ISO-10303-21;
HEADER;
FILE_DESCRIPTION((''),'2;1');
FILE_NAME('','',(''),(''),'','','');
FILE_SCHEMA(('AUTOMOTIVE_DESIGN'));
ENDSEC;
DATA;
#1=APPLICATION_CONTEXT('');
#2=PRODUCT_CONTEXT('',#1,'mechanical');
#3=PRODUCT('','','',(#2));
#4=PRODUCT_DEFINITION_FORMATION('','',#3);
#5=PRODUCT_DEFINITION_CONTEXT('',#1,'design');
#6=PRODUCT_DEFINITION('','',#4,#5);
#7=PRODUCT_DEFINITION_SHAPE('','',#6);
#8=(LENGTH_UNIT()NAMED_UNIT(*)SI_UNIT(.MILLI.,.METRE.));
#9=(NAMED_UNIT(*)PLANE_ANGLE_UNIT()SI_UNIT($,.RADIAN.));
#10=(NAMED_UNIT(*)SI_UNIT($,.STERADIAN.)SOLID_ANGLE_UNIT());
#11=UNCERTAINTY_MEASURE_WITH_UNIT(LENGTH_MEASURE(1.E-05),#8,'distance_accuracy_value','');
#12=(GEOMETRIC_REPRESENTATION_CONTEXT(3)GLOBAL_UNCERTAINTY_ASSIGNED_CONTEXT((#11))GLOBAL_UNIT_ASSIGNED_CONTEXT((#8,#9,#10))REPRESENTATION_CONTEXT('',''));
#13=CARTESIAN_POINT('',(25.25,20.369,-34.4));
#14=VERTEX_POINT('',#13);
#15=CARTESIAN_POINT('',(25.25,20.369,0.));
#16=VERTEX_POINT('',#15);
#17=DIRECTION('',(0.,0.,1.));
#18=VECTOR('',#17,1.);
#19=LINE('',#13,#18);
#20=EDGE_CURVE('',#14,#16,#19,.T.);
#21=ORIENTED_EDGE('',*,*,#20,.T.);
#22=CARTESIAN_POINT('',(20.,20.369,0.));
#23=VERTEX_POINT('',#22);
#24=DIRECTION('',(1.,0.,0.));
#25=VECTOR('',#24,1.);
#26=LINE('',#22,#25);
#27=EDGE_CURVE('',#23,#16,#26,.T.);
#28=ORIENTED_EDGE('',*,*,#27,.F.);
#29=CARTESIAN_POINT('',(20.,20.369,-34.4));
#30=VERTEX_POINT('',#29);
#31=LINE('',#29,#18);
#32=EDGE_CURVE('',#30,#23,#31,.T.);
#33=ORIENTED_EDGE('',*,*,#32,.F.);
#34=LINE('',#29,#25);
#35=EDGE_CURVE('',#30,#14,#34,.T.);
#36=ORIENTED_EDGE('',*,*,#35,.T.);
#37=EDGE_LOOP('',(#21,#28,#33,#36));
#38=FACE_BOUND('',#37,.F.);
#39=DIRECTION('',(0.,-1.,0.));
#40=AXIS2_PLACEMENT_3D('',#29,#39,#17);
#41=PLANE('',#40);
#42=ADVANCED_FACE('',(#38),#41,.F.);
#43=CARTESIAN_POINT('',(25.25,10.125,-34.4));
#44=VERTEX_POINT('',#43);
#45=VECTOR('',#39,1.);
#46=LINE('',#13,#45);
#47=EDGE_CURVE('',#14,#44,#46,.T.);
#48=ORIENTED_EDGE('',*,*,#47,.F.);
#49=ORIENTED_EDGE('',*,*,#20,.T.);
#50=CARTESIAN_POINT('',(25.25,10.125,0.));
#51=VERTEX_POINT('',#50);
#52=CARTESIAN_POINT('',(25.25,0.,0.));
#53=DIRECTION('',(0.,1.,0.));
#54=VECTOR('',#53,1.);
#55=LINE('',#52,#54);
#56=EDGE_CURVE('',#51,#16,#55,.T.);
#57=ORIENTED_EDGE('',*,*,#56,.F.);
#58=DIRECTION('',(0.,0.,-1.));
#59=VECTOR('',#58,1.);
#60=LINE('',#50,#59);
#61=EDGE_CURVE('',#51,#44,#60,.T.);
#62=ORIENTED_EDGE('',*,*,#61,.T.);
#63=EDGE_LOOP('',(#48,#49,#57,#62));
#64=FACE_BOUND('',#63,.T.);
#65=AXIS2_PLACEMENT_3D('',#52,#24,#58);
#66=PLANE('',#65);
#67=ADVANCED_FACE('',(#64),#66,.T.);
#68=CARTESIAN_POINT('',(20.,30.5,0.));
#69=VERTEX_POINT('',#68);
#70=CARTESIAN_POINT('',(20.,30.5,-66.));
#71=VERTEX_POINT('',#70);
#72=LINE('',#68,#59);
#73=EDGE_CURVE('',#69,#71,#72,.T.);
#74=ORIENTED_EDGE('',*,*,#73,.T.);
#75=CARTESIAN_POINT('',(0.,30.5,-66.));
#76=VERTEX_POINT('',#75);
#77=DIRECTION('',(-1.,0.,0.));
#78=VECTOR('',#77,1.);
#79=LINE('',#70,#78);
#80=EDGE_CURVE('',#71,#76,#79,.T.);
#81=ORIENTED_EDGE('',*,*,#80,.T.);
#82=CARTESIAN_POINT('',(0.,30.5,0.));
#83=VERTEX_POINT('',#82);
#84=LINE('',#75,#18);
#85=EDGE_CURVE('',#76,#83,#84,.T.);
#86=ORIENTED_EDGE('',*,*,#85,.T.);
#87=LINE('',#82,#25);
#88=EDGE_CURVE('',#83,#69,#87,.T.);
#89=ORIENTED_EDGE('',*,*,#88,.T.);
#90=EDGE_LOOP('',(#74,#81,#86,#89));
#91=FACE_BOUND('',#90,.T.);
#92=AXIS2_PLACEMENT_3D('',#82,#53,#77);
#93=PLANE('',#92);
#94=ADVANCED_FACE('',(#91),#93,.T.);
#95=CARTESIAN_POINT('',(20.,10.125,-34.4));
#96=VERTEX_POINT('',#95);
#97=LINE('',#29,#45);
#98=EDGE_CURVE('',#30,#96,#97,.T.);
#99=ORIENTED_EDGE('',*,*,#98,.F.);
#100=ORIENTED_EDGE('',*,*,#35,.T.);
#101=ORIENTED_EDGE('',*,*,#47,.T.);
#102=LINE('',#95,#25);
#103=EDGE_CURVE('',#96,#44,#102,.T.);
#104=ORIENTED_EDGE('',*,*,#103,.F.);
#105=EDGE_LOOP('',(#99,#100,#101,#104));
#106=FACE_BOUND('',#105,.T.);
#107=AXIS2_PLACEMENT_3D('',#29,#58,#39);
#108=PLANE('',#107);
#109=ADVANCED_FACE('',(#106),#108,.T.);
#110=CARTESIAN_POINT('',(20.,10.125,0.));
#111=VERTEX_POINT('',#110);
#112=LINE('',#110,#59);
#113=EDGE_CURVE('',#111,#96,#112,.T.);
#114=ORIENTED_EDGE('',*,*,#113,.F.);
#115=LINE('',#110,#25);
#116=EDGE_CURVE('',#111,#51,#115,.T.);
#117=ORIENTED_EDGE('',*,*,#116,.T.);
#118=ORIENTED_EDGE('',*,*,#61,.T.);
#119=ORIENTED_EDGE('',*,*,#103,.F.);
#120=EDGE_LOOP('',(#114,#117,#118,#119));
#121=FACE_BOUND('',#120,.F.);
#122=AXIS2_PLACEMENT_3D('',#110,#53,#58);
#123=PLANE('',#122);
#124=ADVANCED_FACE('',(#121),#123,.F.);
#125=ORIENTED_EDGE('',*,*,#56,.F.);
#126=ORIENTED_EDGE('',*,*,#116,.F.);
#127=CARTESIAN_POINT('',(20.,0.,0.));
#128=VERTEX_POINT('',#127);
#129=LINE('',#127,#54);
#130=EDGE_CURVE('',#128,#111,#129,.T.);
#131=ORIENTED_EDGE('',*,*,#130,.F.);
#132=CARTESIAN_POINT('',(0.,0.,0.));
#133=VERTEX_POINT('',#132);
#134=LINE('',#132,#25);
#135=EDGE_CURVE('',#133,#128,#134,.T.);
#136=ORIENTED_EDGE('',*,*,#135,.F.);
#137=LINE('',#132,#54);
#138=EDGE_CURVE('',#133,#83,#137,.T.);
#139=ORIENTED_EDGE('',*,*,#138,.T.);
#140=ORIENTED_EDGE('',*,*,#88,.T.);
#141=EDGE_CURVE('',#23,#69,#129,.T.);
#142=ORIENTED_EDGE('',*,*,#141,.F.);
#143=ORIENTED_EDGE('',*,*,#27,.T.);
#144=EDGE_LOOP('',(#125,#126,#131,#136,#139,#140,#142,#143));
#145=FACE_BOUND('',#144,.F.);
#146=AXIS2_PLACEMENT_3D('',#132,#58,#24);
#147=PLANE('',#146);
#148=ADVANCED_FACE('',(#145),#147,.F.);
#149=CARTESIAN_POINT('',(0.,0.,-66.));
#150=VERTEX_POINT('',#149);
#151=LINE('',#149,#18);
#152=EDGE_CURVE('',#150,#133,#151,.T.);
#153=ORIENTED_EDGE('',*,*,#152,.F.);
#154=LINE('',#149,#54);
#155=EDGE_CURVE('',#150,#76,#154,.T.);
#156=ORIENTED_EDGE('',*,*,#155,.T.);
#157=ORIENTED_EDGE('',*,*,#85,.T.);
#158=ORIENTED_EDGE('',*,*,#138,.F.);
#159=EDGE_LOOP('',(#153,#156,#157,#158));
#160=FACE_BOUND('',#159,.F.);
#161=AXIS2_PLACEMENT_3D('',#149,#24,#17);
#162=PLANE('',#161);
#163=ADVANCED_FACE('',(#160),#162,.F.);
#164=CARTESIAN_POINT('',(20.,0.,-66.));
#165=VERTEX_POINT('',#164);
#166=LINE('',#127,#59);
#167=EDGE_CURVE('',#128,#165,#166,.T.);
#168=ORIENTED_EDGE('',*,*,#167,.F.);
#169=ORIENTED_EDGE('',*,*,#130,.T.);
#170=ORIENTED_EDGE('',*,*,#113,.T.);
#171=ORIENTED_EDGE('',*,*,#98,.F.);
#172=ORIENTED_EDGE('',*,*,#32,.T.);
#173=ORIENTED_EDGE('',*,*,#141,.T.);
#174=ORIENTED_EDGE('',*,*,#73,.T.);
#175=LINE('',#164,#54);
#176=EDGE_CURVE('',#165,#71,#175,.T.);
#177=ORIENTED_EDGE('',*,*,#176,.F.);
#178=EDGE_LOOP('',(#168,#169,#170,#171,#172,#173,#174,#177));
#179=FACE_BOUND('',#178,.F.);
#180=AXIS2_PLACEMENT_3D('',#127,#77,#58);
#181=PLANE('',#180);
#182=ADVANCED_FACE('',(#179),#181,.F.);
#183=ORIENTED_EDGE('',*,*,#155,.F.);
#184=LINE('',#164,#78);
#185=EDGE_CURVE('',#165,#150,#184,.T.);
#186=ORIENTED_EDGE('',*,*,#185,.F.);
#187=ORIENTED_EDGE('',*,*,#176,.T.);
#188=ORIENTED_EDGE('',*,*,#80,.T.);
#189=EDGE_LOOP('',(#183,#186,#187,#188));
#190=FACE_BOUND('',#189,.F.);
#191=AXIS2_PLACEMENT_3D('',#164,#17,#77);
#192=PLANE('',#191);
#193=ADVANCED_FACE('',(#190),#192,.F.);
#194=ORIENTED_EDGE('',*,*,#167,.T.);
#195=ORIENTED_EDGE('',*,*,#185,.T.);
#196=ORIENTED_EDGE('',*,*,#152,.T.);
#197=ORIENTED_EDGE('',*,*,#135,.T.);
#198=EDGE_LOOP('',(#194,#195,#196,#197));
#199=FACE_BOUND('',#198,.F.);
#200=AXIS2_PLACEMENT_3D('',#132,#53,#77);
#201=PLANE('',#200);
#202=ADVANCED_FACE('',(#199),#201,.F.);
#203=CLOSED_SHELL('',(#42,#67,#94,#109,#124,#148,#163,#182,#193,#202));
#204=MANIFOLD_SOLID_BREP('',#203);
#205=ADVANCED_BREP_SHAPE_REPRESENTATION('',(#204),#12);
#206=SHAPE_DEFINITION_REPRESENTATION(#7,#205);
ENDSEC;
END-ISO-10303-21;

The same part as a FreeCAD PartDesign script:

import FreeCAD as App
import Part
import Sketcher
from FreeCAD import Vector


def add_polygon(sketch, points):
    """Adds a closed chain of lines whose ends are joined by coincident constraints."""
    first, n = sketch.GeometryCount, len(points)
    for a, b in zip(points, points[1:] + points[:1]):
        sketch.addGeometry(Part.LineSegment(App.Vector(*a, 0), App.Vector(*b, 0)), False)
    for i in range(n):
        sketch.addConstraint(Sketcher.Constraint("Coincident", first + i, 2, first + (i + 1) % n, 1))

doc = App.newDocument("Part")
params = doc.addObject("Spreadsheet::Sheet", "Params")
for row, (alias, value) in enumerate([
    ("sketch1_width", "20 mm"),
    ("sketch1_height", "66 mm"),
    ("pad1_length", "30.5 mm"),
    ("sketch2_height", "34.4 mm"),
    ("pad2_length", "5.25 mm"),
], start=1):
    params.set(f"A{row}", alias)
    params.set(f"B{row}", "=" + value)
    params.setAlias(f"B{row}", alias)

body = doc.addObject("PartDesign::Body", "Body")

sketch1 = body.newObject("Sketcher::SketchObject", "Sketch")
sketch1.AttachmentSupport = (doc.getObject("XZ_Plane"), [""])
sketch1.MapMode = "FlatFace"
add_polygon(sketch1, [(0, -66), (0, 0), (20, 0), (20, -66)])
sketch1.addConstraint([
    Sketcher.Constraint("Vertical", 0),
    Sketcher.Constraint("Horizontal", 1),
    Sketcher.Constraint("Vertical", 2),
    Sketcher.Constraint("Horizontal", 3),
    Sketcher.Constraint("Coincident", 0, 2, -1, 1),
    Sketcher.Constraint("DistanceX", 1, 1, 1, 2, 20.0),
    Sketcher.Constraint("DistanceY", 0, 1, 0, 2, 66.0),
])
sketch1.setExpression("Constraints[9]", "Params.sketch1_width")
sketch1.setExpression("Constraints[10]", "Params.sketch1_height")
pad1 = body.newObject("PartDesign::Pad", "Pad")
pad1.Profile = sketch1
pad1.setExpression("Length", "Params.pad1_length")
pad1.Reversed = True

sketch2 = body.newObject("Sketcher::SketchObject", "Sketch001")
sketch2.AttachmentSupport = (doc.getObject("YZ_Plane"), [""])
sketch2.MapMode = "FlatFace"
sketch2.AttachmentOffset = App.Placement(Vector(0, 0, 20), App.Rotation())
add_polygon(sketch2, [(10, -34), (20, -34), (20, 0), (10, 0)])
sketch2.addConstraint([
    Sketcher.Constraint("Horizontal", 0),
    Sketcher.Constraint("Vertical", 1),
    Sketcher.Constraint("Horizontal", 2),
    Sketcher.Constraint("Vertical", 3),
    Sketcher.Constraint("PointOnObject", 1, 2, -1),
    Sketcher.Constraint("DistanceY", 1, 1, 1, 2, 34.4),
    Sketcher.Constraint("DistanceX", 0, 1, 0, 2, 10.244),
    Sketcher.Constraint("DistanceX", -1, 1, 0, 2, 20.369),
])
sketch2.setExpression("Constraints[9]", "Params.sketch2_height")
pad2 = body.newObject("PartDesign::Pad", "Pad001")
pad2.Profile = sketch2
pad2.setExpression("Length", "Params.pad2_length")

doc.recompute()
